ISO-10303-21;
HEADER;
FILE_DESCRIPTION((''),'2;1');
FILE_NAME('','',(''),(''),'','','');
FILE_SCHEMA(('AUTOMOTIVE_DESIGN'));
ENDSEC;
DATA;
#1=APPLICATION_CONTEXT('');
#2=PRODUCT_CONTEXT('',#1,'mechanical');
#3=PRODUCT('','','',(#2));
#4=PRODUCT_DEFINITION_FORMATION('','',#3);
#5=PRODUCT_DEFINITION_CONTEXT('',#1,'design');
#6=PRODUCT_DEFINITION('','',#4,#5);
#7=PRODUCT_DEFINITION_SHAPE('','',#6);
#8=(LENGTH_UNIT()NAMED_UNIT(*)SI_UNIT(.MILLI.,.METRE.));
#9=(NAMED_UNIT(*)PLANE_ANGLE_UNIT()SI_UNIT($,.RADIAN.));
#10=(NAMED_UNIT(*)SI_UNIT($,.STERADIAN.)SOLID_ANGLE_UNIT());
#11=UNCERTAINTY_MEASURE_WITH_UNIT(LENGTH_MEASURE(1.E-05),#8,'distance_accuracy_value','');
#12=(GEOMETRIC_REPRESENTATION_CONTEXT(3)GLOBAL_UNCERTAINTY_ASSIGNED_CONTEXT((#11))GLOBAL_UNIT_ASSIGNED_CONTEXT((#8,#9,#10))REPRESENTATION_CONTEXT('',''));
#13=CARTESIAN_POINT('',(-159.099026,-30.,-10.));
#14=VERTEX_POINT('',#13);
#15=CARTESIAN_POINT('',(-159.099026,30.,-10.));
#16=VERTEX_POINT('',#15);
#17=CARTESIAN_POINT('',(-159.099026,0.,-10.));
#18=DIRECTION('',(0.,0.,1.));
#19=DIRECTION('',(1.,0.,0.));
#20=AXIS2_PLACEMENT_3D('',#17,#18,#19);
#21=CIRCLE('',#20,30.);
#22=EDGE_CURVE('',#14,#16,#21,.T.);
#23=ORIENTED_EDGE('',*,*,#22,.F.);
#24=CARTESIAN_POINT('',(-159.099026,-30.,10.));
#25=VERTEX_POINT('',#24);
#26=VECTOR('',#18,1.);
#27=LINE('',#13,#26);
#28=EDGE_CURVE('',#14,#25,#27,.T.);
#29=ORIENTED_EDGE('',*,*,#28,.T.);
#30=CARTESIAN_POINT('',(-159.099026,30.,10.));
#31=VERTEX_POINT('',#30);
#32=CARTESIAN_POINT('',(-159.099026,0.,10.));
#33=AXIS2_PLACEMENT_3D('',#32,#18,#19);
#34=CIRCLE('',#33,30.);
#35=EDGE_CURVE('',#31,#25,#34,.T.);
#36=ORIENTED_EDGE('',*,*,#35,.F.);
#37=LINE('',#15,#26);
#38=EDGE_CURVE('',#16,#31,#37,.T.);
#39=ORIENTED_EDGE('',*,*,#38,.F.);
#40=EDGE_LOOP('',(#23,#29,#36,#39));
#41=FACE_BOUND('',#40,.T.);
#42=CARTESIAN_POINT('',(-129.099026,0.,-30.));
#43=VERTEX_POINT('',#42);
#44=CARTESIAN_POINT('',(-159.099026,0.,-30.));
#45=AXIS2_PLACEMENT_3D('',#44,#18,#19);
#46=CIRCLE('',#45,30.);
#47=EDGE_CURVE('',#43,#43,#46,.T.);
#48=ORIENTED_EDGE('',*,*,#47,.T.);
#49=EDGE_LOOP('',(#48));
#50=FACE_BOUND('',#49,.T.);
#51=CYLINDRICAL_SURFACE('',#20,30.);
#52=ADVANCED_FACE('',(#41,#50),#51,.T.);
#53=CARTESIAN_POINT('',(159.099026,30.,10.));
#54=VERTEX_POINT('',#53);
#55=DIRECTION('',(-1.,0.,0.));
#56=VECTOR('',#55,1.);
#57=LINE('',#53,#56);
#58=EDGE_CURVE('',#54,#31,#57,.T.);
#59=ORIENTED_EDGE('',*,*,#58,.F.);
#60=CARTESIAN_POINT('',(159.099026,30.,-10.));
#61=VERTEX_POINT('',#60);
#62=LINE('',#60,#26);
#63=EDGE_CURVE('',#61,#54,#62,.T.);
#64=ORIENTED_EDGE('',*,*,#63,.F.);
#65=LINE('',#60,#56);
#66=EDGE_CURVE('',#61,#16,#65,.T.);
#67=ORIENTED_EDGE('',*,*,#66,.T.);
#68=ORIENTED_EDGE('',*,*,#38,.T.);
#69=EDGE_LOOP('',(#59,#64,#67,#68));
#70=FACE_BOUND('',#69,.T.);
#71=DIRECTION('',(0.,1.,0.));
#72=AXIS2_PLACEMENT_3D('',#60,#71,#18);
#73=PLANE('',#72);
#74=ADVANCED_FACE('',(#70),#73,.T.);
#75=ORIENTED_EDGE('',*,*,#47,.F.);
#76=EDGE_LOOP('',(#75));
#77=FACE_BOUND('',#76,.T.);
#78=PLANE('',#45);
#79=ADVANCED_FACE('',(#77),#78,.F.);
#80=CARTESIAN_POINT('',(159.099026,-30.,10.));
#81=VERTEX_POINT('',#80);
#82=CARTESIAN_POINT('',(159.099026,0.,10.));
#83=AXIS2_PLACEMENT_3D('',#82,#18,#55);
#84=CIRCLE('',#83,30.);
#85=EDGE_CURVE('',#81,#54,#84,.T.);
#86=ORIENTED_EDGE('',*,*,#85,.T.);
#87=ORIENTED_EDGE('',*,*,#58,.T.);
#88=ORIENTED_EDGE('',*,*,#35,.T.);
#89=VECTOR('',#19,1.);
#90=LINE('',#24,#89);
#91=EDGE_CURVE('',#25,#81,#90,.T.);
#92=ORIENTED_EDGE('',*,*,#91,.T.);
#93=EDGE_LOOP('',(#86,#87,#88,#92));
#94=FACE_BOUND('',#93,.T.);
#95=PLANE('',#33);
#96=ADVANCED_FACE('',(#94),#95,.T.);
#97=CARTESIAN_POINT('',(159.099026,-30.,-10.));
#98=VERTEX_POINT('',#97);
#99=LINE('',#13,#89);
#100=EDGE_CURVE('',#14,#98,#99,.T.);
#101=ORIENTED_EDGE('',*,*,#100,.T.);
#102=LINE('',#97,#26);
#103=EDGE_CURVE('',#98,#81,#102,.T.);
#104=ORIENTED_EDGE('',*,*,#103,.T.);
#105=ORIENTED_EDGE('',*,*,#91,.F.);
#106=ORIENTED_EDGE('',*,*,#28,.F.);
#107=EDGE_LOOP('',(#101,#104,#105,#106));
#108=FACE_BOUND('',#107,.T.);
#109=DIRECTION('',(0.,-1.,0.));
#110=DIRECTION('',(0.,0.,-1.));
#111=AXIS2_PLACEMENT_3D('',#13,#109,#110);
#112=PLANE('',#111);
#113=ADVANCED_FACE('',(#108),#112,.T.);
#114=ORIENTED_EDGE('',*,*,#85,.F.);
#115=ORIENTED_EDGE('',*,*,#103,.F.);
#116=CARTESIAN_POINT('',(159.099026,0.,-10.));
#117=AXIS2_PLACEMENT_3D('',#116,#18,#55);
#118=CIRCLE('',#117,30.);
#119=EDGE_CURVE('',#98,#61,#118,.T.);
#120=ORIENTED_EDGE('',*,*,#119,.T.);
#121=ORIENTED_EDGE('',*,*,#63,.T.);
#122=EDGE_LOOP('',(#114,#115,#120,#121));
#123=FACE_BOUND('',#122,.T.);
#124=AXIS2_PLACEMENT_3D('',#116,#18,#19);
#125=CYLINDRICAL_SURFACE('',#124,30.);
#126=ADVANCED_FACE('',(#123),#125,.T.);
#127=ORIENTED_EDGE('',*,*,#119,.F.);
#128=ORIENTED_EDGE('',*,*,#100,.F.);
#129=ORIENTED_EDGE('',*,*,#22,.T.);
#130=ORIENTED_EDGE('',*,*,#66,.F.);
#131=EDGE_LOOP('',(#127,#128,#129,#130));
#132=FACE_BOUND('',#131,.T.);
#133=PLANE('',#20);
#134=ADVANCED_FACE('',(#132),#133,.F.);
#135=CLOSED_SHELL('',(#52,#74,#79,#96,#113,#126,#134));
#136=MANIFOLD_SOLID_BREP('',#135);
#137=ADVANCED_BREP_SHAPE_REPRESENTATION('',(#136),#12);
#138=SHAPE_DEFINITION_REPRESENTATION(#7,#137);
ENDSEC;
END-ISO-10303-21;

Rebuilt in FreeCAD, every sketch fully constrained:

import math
import FreeCAD as App
import Part
import Sketcher
from FreeCAD import Vector
Q = App.Units.Quantity

doc = App.newDocument("Part")
params = doc.addObject("Spreadsheet::Sheet", "Params")
for row, (alias, value) in enumerate([
    ("sketch1_radius", "30 mm"),
    ("pad1_length", "10 mm"),
    ("pad1_length2", "10 mm"),
    ("sketch2_diameter", "60 mm"),
    ("pad2_length", "30 mm"),
], start=1):
    params.set(f"A{row}", alias)
    params.set(f"B{row}", "=" + value)
    params.setAlias(f"B{row}", alias)

body = doc.addObject("PartDesign::Body", "Body")

sketch1 = body.newObject("Sketcher::SketchObject", "Sketch")
sketch1.AttachmentSupport = (doc.getObject("XY_Plane"), [""])
sketch1.MapMode = "FlatFace"
sketch1.addGeometry(Part.LineSegment(Vector(159, 30, 0), Vector(-159, 30, 0)), False)
sketch1.addGeometry(Part.ArcOfCircle(Part.Circle(Vector(-159, 0, 0), Vector(0, 0, 1), 30), math.radians(90), math.radians(270)), False)
sketch1.addGeometry(Part.LineSegment(Vector(-159, -30, 0), Vector(159, -30, 0)), False)
sketch1.addGeometry(Part.ArcOfCircle(Part.Circle(Vector(159, 0, 0), Vector(0, 0, 1), 30), math.radians(-90), math.radians(90)), False)
sketch1.addConstraint(Sketcher.Constraint("Tangent", 0, 2, 1, 1))
sketch1.addConstraint(Sketcher.Constraint("Tangent", 1, 2, 2, 1))
sketch1.addConstraint(Sketcher.Constraint("Tangent", 2, 2, 3, 1))
sketch1.addConstraint(Sketcher.Constraint("Tangent", 3, 2, 0, 1))
sketch1.addConstraint(Sketcher.Constraint("Horizontal", 0))
sketch1.addConstraint(Sketcher.Constraint("Horizontal", 2))
sketch1.addConstraint(Sketcher.Constraint("Symmetric", 1, 3, 3, 3, -1, 1))
sketch1.addConstraint(Sketcher.Constraint("Radius", 1, Q("30 mm")))
sketch1.addConstraint(Sketcher.Constraint("DistanceX", 0, 2, 0, 1, Q("318.198052 mm")))
sketch1.setExpression("Constraints[7]", "Params.sketch1_radius")
pad1 = body.newObject("PartDesign::Pad", "Pad")
pad1.Profile = sketch1
pad1.Type = "TwoLengths"
pad1.setExpression("Length", "Params.pad1_length")
pad1.setExpression("Length2", "Params.pad1_length2")

sketch2 = body.newObject("Sketcher::SketchObject", "Sketch001")
sketch2.AttachmentSupport = (doc.getObject("XY_Plane"), [""])
sketch2.MapMode = "FlatFace"
sketch2.AttachmentOffset = App.Placement(Vector(0, 0, -30), App.Rotation())
sketch2.addGeometry(Part.Circle(Vector(-159, 0, 0), Vector(0, 0, 1), 30), False)
sketch2.addConstraint(Sketcher.Constraint("PointOnObject", 0, 3, -1))
sketch2.addConstraint(Sketcher.Constraint("Diameter", 0, Q("60 mm")))
sketch2.addConstraint(Sketcher.Constraint("DistanceX", 0, 3, -1, 1, Q("159.099026 mm")))
sketch2.setExpression("Constraints[1]", "Params.sketch2_diameter")
pad2 = body.newObject("PartDesign::Pad", "Pad001")
pad2.Profile = sketch2
pad2.setExpression("Length", "Params.pad2_length")

doc.recompute()
